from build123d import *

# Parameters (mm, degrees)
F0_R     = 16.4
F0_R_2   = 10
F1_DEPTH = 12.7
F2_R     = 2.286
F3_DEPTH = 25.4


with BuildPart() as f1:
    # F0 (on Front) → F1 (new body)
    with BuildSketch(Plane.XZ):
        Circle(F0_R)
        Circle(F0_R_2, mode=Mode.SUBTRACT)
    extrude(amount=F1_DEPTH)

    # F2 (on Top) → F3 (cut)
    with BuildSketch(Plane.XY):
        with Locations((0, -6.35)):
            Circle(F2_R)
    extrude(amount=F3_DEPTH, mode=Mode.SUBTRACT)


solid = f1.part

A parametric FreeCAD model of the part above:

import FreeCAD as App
import Part
import Sketcher
from FreeCAD import Vector
Q = App.Units.Quantity

doc = App.newDocument("Part")
body = doc.addObject("PartDesign::Body", "Body")

sketch1 = body.newObject("Sketcher::SketchObject", "Sketch")
sketch1.AttachmentSupport = (doc.getObject("XZ_Plane"), [""])
sketch1.MapMode = "FlatFace"
sketch1.addGeometry([
    Part.Circle(Vector(0, 0, 0), Vector(0, 0, 1), 16),
    Part.Circle(Vector(0, 0, 0), Vector(0, 0, 1), 10),
], False)
sketch1.addConstraint([
    Sketcher.Constraint("Coincident", 0, 3, -1, 1),
    Sketcher.Constraint("Coincident", 1, 3, -1, 1),
    Sketcher.Constraint("Diameter", 0, Q("32.8 mm")),
    Sketcher.Constraint("Diameter", 1, Q("20 mm")),
])
pad1 = body.newObject("PartDesign::Pad", "Pad")
pad1.Profile = sketch1
pad1.Length = Q("0.5 in")

sketch2 = body.newObject("Sketcher::SketchObject", "Sketch001")
sketch2.AttachmentSupport = (doc.getObject("XY_Plane"), [""])
sketch2.MapMode = "FlatFace"
sketch2.addGeometry(Part.Circle(Vector(0, -6.3, 0), Vector(0, 0, 1), 2.3), False)
sketch2.addConstraint([
    Sketcher.Constraint("PointOnObject", 0, 3, -2),
    Sketcher.Constraint("Diameter", 0, Q("0.18 in")),
    Sketcher.Constraint("DistanceY", 0, 3, -1, 1, Q("0.25 in")),
])
pocket1 = body.newObject("PartDesign::Pocket", "Pocket")
pocket1.Profile = sketch2
pocket1.Length = Q("1 in")
pocket1.Reversed = True

doc.recompute()
